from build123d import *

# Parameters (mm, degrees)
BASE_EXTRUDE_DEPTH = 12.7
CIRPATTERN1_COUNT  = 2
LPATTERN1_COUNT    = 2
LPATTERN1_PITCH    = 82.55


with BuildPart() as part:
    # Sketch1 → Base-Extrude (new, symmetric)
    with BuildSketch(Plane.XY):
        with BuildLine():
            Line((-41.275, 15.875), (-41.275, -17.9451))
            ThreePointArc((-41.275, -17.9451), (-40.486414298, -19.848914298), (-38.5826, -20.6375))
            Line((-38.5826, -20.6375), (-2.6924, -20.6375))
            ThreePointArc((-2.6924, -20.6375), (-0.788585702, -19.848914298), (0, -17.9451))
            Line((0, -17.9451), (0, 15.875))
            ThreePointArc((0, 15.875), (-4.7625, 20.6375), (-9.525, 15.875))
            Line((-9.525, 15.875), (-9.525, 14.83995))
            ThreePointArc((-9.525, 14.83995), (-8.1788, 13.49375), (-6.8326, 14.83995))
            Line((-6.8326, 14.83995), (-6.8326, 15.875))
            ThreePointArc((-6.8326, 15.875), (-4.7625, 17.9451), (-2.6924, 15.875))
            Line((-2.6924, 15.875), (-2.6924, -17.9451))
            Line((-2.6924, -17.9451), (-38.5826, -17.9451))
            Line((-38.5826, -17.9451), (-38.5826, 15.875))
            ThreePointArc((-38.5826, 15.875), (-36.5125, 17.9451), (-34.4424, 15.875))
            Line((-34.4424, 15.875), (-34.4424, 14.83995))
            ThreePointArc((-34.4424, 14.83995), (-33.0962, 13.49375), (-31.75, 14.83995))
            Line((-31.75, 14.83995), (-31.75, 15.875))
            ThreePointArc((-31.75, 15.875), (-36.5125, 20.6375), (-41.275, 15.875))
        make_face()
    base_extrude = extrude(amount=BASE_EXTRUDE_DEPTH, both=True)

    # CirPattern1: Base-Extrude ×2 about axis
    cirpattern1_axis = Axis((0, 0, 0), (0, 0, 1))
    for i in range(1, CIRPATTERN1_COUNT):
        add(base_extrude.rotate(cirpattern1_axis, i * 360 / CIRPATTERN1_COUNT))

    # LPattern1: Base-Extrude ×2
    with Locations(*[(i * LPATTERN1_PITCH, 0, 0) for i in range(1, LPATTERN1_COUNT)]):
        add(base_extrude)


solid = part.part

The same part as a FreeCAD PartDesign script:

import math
import FreeCAD as App
import Part
import Sketcher
from FreeCAD import Vector
Q = App.Units.Quantity

doc = App.newDocument("Part")
body = doc.addObject("PartDesign::Body", "Body")

# Sketch on XY plane
sketch1 = body.newObject("Sketcher::SketchObject", "Sketch")
sketch1.AttachmentSupport = (doc.getObject("XY_Plane"), [""])
sketch1.MapMode = "FlatFace"
sketch1.addGeometry(Part.LineSegment(Vector(-41.3, 15.9, 0), Vector(-41.3, -17.9, 0)), False)
sketch1.addGeometry(Part.ArcOfCircle(Part.Circle(Vector(-38.6, -17.9, 0), Vector(0, 0, 1), 2.7), math.radians(180), math.radians(270)), False)
sketch1.addGeometry(Part.LineSegment(Vector(-38.6, -20.6, 0), Vector(-2.7, -20.6, 0)), False)
sketch1.addGeometry(Part.ArcOfCircle(Part.Circle(Vector(-2.7, -17.9, 0), Vector(0, 0, 1), 2.7), math.radians(-90), math.radians(0)), False)
sketch1.addGeometry(Part.LineSegment(Vector(0, -17.9, 0), Vector(0, 15.9, 0)), False)
sketch1.addGeometry(Part.ArcOfCircle(Part.Circle(Vector(-4.8, 15.9, 0), Vector(0, 0, 1), 4.8), math.radians(0), math.radians(180)), False)
sketch1.addGeometry(Part.LineSegment(Vector(-9.5, 15.9, 0), Vector(-9.5, 14.8, 0)), False)
sketch1.addGeometry(Part.ArcOfCircle(Part.Circle(Vector(-8.2, 14.8, 0), Vector(0, 0, 1), 1.3), math.radians(180), math.radians(360)), False)
sketch1.addGeometry(Part.LineSegment(Vector(-6.8, 14.8, 0), Vector(-6.8, 15.9, 0)), False)
sketch1.addGeometry(Part.ArcOfCircle(Part.Circle(Vector(-4.8, 15.9, 0), Vector(0, 0, 1), 2.1), math.radians(0), math.radians(180)), False)
sketch1.addGeometry(Part.LineSegment(Vector(-2.7, 15.9, 0), Vector(-2.7, -17.9, 0)), False)
sketch1.addGeometry(Part.LineSegment(Vector(-2.7, -17.9, 0), Vector(-38.6, -17.9, 0)), False)
sketch1.addGeometry(Part.LineSegment(Vector(-38.6, -17.9, 0), Vector(-38.6, 15.9, 0)), False)
sketch1.addGeometry(Part.ArcOfCircle(Part.Circle(Vector(-36.5, 15.9, 0), Vector(0, 0, 1), 2.1), math.radians(0), math.radians(180)), False)
sketch1.addGeometry(Part.LineSegment(Vector(-34.4, 15.9, 0), Vector(-34.4, 14.8, 0)), False)
sketch1.addGeometry(Part.ArcOfCircle(Part.Circle(Vector(-33.1, 14.8, 0), Vector(0, 0, 1), 1.3), math.radians(180), math.radians(360)), False)
sketch1.addGeometry(Part.LineSegment(Vector(-31.8, 14.8, 0), Vector(-31.8, 15.9, 0)), False)
sketch1.addGeometry(Part.ArcOfCircle(Part.Circle(Vector(-36.5, 15.9, 0), Vector(0, 0, 1), 4.8), math.radians(0), math.radians(180)), False)
sketch1.addConstraint(Sketcher.Constraint("Tangent", 0, 2, 1, 1))
sketch1.addConstraint(Sketcher.Constraint("Tangent", 1, 2, 2, 1))
sketch1.addConstraint(Sketcher.Constraint("Tangent", 2, 2, 3, 1))
sketch1.addConstraint(Sketcher.Constraint("Tangent", 3, 2, 4, 1))
sketch1.addConstraint(Sketcher.Constraint("Tangent", 4, 2, 5, 1))
sketch1.addConstraint(Sketcher.Constraint("Tangent", 5, 2, 6, 1))
sketch1.addConstraint(Sketcher.Constraint("Tangent", 6, 2, 7, 1))
sketch1.addConstraint(Sketcher.Constraint("Tangent", 7, 2, 8, 1))
sketch1.addConstraint(Sketcher.Constraint("Tangent", 8, 2, 9, 2))
sketch1.addConstraint(Sketcher.Constraint("Tangent", 9, 1, 10, 1))
sketch1.addConstraint(Sketcher.Constraint("Coincident", 10, 2, 11, 1))
sketch1.addConstraint(Sketcher.Constraint("Coincident", 11, 2, 12, 1))
sketch1.addConstraint(Sketcher.Constraint("Tangent", 12, 2, 13, 2))
sketch1.addConstraint(Sketcher.Constraint("Tangent", 13, 1, 14, 1))
sketch1.addConstraint(Sketcher.Constraint("Tangent", 14, 2, 15, 1))
sketch1.addConstraint(Sketcher.Constraint("Tangent", 15, 2, 16, 1))
sketch1.addConstraint(Sketcher.Constraint("Tangent", 16, 2, 17, 1))
sketch1.addConstraint(Sketcher.Constraint("Tangent", 17, 2, 0, 1))
sketch1.addConstraint(Sketcher.Constraint("Vertical", 0))
sketch1.addConstraint(Sketcher.Constraint("Horizontal", 2))
sketch1.addConstraint(Sketcher.Constraint("Vertical", 4))
sketch1.addConstraint(Sketcher.Constraint("Vertical", 6))
sketch1.addConstraint(Sketcher.Constraint("Vertical", 8))
sketch1.addConstraint(Sketcher.Constraint("Vertical", 10))
sketch1.addConstraint(Sketcher.Constraint("Horizontal", 11))
sketch1.addConstraint(Sketcher.Constraint("Vertical", 12))
sketch1.addConstraint(Sketcher.Constraint("Vertical", 14))
sketch1.addConstraint(Sketcher.Constraint("Vertical", 16))
sketch1.addConstraint(Sketcher.Constraint("Coincident", 9, 3, 5, 3))
sketch1.addConstraint(Sketcher.Constraint("Coincident", 17, 3, 13, 3))
sketch1.addConstraint(Sketcher.Constraint("Coincident", 10, 2, 3, 3))
sketch1.addConstraint(Sketcher.Constraint("Coincident", 11, 2, 1, 3))
sketch1.addConstraint(Sketcher.Constraint("Equal", 9, 13))
sketch1.addConstraint(Sketcher.Constraint("PointOnObject", 3, 2, -2))
sketch1.addConstraint(Sketcher.Constraint("Horizontal", 9, 3, 13, 3))
sketch1.addConstraint(Sketcher.Constraint("Horizontal", 7, 3, 15, 3))
sketch1.addConstraint(Sketcher.Constraint("Radius", 1, Q("0.106 in")))
sketch1.addConstraint(Sketcher.Constraint("Radius", 5, Q("0.1875 in")))
sketch1.addConstraint(Sketcher.Constraint("DistanceX", 2, 1, 2, 2, Q("1.413 in")))
sketch1.addConstraint(Sketcher.Constraint("DistanceY", 0, 2, 0, 1, Q("1.3315 in")))
sketch1.addConstraint(Sketcher.Constraint("DistanceY", -1, 1, 5, 3, Q("0.625 in")))
sketch1.addConstraint(Sketcher.Constraint("DistanceY", 6, 2, 6, 1, Q("1.03505 mm")))
pad1 = body.newObject("PartDesign::Pad", "Pad")
pad1.Profile = sketch1
pad1.Length = Q("1 in")
pad1.Midplane = True
doc.recompute()

polarpattern = body.newObject("PartDesign::PolarPattern", "PolarPattern")
polarpattern.Originals = [pad1]
polarpattern.Axis = (doc.getObject("Z_Axis"), [""])
polarpattern.Angle = 360
polarpattern.Occurrences = 2
body.Tip = polarpattern
doc.recompute()

linearpattern = body.newObject("PartDesign::LinearPattern", "LinearPattern")
linearpattern.Originals = [pad1]
linearpattern.Direction = (doc.getObject("X_Axis"), [""])
linearpattern.Mode = "offset"
linearpattern.Offset = Q("3.25 in")
linearpattern.Occurrences = 2
body.Tip = linearpattern

doc.recompute()
